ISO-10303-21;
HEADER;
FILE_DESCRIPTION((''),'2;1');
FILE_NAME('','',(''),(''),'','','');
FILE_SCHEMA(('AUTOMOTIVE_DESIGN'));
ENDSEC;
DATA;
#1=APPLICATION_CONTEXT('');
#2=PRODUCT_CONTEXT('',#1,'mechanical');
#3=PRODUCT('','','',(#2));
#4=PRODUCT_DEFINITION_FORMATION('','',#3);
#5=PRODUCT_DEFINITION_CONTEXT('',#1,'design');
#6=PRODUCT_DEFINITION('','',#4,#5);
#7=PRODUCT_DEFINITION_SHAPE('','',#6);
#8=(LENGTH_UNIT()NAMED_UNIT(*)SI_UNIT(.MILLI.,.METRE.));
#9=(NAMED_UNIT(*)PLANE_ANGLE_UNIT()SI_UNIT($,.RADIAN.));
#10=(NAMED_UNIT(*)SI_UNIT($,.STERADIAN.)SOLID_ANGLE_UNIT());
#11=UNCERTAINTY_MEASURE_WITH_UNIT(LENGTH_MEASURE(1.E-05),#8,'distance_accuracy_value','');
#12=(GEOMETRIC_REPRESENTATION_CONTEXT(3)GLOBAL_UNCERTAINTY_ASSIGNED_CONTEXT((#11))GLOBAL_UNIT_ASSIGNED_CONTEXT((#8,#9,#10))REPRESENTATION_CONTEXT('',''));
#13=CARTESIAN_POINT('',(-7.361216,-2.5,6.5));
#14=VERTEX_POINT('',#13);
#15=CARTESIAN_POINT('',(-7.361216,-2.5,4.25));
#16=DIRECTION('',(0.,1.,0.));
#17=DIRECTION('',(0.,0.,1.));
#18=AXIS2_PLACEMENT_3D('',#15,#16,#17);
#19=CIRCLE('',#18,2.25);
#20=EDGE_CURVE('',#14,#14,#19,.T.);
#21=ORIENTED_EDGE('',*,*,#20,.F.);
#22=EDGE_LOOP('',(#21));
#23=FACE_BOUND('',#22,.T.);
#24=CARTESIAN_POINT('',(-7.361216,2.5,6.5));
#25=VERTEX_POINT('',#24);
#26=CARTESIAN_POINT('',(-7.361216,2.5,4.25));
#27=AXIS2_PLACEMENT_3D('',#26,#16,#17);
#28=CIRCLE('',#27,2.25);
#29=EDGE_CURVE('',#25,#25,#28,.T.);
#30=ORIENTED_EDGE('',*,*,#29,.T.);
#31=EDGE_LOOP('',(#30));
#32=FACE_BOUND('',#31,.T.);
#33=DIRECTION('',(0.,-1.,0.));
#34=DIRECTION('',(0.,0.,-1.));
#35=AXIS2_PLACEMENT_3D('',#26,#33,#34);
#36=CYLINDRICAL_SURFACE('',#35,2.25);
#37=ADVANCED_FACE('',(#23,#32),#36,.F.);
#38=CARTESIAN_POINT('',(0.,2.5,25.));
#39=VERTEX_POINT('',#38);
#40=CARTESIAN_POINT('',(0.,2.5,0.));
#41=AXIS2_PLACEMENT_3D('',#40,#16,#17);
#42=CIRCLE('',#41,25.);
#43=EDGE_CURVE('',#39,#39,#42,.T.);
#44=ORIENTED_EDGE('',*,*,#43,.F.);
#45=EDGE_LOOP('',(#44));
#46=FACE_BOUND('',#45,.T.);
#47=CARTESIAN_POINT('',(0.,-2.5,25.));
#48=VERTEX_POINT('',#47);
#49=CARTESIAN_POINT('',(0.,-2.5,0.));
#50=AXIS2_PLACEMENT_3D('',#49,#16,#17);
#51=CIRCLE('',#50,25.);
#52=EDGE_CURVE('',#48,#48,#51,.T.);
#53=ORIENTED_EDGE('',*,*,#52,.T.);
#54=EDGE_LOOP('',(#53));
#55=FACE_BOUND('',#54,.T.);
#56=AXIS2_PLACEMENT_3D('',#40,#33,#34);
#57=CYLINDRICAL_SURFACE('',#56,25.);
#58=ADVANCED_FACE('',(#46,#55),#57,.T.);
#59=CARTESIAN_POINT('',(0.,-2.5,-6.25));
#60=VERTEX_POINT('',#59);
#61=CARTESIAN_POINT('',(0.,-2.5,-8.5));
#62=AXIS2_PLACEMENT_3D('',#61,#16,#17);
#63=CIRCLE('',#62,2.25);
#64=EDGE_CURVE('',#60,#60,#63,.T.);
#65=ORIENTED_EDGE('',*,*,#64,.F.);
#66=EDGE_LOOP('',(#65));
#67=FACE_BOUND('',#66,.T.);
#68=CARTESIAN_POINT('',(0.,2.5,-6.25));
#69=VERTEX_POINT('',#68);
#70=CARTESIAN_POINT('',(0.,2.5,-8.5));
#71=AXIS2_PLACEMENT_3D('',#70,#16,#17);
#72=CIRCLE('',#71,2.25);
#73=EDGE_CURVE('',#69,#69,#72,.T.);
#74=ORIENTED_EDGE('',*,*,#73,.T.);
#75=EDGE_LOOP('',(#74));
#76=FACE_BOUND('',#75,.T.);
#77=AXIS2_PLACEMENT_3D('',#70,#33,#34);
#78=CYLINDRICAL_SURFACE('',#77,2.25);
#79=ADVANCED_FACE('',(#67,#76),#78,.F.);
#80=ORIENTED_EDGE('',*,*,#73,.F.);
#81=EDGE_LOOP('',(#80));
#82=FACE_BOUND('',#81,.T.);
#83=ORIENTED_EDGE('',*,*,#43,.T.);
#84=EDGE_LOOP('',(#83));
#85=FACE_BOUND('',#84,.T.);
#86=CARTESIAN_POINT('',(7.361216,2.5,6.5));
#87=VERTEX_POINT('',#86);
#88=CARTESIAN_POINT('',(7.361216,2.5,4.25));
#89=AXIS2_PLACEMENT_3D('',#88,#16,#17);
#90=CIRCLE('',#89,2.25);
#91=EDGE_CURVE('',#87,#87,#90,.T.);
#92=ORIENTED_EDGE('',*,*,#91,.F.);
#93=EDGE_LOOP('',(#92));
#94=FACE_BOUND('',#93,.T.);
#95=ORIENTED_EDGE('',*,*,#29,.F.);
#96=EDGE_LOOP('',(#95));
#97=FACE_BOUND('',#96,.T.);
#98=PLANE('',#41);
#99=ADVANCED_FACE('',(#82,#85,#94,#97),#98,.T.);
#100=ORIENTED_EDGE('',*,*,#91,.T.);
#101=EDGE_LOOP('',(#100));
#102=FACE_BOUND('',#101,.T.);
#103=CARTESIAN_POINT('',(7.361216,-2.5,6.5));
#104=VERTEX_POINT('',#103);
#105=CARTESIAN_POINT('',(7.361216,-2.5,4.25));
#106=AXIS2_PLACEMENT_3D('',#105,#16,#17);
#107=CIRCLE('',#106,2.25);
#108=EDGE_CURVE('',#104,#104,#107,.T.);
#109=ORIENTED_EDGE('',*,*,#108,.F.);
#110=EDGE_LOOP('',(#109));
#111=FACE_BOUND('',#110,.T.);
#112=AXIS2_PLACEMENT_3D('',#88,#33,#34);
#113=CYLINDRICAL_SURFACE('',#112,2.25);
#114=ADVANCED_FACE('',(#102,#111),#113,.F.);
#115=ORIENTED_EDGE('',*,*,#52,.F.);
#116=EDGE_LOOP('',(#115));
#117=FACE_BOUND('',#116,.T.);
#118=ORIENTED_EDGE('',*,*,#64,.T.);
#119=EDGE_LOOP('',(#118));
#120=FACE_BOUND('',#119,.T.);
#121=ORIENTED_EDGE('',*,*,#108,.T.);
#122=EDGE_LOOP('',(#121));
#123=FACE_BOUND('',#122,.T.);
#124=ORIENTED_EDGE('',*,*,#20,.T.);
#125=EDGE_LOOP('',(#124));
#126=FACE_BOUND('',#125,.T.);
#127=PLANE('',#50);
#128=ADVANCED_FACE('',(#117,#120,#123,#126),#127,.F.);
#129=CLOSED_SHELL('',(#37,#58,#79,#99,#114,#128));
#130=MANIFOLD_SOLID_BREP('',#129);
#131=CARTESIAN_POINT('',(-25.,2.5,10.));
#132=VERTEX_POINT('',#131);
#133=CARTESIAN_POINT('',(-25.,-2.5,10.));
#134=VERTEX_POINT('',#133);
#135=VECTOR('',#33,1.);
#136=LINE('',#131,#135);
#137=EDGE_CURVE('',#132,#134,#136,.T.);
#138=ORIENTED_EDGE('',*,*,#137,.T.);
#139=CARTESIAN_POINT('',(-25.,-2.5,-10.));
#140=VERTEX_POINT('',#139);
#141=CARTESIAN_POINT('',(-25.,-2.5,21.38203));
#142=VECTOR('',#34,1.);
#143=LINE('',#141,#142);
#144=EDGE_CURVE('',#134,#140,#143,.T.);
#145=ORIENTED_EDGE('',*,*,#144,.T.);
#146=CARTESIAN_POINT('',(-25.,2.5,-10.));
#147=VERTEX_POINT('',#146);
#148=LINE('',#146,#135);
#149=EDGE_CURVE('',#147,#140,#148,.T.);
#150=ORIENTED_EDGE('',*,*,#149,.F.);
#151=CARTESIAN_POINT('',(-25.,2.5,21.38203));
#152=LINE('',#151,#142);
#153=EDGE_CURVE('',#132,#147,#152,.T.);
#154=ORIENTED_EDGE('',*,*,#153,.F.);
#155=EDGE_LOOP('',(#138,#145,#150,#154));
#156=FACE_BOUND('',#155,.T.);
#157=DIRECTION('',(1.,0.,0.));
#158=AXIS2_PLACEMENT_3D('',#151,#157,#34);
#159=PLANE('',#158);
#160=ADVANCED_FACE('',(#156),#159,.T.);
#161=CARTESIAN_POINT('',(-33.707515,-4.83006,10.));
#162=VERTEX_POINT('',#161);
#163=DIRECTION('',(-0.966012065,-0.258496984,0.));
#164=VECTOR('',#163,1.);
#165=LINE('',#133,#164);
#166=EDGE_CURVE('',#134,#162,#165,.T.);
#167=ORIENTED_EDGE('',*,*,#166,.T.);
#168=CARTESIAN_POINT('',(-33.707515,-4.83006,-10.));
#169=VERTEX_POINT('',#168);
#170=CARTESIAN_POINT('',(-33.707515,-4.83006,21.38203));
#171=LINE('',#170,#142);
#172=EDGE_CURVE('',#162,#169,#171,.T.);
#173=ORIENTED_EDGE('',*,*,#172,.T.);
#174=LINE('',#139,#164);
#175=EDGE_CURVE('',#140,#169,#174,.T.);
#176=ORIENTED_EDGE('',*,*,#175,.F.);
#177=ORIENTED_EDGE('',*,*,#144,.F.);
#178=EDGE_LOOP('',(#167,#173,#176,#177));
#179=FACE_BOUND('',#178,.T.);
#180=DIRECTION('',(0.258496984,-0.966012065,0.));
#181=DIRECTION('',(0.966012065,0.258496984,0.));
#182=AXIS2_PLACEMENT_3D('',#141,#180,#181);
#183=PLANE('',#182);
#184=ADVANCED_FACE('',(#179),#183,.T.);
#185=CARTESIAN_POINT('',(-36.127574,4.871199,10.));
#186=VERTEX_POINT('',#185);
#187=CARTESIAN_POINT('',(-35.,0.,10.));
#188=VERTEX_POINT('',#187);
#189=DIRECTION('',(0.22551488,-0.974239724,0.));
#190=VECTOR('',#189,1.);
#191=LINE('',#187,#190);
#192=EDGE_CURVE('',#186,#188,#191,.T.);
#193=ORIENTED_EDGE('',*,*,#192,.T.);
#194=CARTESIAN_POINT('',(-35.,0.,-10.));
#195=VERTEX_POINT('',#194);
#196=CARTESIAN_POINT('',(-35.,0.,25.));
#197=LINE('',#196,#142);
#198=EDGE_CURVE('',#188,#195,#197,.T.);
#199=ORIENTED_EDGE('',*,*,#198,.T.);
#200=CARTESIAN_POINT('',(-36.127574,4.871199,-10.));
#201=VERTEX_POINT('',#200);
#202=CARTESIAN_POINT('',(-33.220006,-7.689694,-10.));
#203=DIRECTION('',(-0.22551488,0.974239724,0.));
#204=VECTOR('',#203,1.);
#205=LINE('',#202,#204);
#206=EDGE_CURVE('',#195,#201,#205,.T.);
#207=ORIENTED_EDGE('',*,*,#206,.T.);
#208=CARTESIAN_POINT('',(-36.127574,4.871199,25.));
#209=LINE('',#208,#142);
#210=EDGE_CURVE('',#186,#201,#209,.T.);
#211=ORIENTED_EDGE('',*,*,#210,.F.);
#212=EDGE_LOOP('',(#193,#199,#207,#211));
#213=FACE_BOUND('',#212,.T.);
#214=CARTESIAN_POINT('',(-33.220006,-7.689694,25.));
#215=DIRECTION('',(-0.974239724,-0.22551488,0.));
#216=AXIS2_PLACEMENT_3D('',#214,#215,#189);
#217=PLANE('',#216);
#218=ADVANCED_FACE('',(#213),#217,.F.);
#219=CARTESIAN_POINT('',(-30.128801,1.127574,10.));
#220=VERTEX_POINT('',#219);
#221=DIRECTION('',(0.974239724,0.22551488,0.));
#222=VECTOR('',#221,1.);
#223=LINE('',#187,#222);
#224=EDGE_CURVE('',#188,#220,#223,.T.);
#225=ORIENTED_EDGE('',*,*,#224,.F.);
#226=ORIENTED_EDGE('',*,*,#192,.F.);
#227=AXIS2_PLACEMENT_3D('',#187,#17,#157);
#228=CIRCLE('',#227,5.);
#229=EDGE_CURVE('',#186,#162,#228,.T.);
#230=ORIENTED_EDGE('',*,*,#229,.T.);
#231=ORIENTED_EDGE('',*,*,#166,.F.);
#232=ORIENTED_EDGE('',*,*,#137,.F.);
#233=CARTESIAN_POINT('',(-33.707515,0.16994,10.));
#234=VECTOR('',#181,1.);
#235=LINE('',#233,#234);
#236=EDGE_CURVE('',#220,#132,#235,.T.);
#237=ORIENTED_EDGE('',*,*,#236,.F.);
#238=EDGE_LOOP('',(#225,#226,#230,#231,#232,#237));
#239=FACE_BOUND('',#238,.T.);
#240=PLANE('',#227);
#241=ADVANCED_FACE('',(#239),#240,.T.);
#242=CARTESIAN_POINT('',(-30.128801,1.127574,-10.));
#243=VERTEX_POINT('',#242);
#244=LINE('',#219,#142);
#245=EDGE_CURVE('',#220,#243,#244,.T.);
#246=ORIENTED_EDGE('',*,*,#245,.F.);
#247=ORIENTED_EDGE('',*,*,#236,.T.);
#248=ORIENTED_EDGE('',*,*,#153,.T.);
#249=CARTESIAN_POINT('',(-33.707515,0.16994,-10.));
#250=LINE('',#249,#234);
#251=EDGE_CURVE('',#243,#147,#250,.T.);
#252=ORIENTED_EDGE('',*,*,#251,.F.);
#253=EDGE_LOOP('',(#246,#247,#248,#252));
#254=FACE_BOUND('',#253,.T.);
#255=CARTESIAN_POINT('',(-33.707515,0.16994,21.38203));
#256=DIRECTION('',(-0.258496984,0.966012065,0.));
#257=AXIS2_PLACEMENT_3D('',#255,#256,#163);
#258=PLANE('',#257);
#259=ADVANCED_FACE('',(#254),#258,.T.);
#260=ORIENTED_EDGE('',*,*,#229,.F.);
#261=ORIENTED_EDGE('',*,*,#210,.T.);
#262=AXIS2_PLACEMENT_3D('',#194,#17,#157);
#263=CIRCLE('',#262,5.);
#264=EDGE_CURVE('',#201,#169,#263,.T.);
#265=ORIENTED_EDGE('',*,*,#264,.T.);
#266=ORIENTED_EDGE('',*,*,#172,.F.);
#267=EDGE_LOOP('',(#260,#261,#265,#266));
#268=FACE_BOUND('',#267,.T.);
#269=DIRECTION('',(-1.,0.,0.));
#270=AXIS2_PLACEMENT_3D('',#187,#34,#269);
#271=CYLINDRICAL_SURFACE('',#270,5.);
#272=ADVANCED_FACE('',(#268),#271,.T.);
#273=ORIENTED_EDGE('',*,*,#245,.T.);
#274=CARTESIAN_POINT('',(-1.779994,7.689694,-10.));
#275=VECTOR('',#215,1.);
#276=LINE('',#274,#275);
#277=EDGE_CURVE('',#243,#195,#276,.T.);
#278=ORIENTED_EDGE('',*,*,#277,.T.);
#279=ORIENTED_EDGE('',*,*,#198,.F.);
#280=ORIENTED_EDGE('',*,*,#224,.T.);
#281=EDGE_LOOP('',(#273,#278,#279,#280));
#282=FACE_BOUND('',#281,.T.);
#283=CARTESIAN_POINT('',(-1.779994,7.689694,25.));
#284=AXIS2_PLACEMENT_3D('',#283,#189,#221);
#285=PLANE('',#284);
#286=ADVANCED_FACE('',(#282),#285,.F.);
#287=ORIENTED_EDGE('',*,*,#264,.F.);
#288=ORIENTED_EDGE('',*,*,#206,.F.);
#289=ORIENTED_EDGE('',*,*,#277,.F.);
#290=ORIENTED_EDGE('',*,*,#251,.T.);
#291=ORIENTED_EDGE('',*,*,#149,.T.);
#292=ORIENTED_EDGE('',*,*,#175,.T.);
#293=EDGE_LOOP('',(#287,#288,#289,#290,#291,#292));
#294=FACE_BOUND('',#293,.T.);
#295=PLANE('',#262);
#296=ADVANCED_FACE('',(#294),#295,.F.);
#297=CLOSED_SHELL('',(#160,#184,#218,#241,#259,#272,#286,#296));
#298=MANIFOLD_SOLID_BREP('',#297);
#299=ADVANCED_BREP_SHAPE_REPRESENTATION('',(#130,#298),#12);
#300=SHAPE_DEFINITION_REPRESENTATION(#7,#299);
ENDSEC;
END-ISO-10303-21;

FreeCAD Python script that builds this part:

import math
import FreeCAD as App
import Part
import Sketcher
Q = App.Units.Quantity


def add_polygon(sketch, points):
    """Adds a closed chain of lines whose ends are joined by coincident constraints."""
    first, n = sketch.GeometryCount, len(points)
    for a, b in zip(points, points[1:] + points[:1]):
        sketch.addGeometry(Part.LineSegment(App.Vector(*a, 0), App.Vector(*b, 0)), False)
    for i in range(n):
        sketch.addConstraint(Sketcher.Constraint("Coincident", first + i, 2, first + (i + 1) % n, 1))

doc = App.newDocument("Part")
body = doc.addObject("PartDesign::Body", "Body")

# Sketch on XZ plane
sketch1 = body.newObject("Sketcher::SketchObject", "Sketch")
sketch1.AttachmentSupport = (doc.getObject("XZ_Plane"), [""])
sketch1.MapMode = "FlatFace"
sketch1.addGeometry(Part.Circle(App.Vector(0, 0, 0), App.Vector(0, 0, 1), 25), False)
sketch1.addGeometry(Part.Circle(App.Vector(0, -8.5, 0), App.Vector(0, 0, 1), 2.2), False)
sketch1.addGeometry(Part.Circle(App.Vector(-7.4, 4.2, 0), App.Vector(0, 0, 1), 2.2), False)
sketch1.addGeometry(Part.Circle(App.Vector(7.4, 4.2, 0), App.Vector(0, 0, 1), 2.2), False)
sketch1.addConstraint(Sketcher.Constraint("Coincident", 0, 3, -1, 1))
sketch1.addConstraint(Sketcher.Constraint("Equal", 1, 2))
sketch1.addConstraint(Sketcher.Constraint("Equal", 2, 3))
sketch1.addConstraint(Sketcher.Constraint("Symmetric", 2, 3, 3, 3, -2))
sketch1.addConstraint(Sketcher.Constraint("PointOnObject", 1, 3, -2))
sketch1.addConstraint(Sketcher.Constraint("Diameter", 0, Q("50 mm")))
sketch1.addConstraint(Sketcher.Constraint("Diameter", 1, Q("4.5 mm")))
sketch1.addConstraint(Sketcher.Constraint("DistanceY", 1, 3, -1, 1, Q("8.5 mm")))
sketch1.addConstraint(Sketcher.Constraint("DistanceY", -1, 1, 2, 3, Q("4.25 mm")))
sketch1.addConstraint(Sketcher.Constraint("DistanceX", 2, 3, 3, 3, Q("14.722432 mm")))
pad1 = body.newObject("PartDesign::Pad", "Pad")
pad1.Profile = sketch1
pad1.Length = 5
pad1.Midplane = True
body2 = doc.addObject("PartDesign::Body", "Body001")

# Sketch on XY plane
sketch2 = body2.newObject("Sketcher::SketchObject", "Sketch001")
sketch2.AttachmentSupport = (doc.getObject("XY_Plane001"), [""])
sketch2.MapMode = "FlatFace"
sketch2.addGeometry(Part.Circle(App.Vector(-35, 0, 0), App.Vector(0, 0, 1), 5), False)
sketch2.addConstraint(Sketcher.Constraint("PointOnObject", 0, 3, -1))
sketch2.addConstraint(Sketcher.Constraint("Diameter", 0, Q("10 mm")))
sketch2.addConstraint(Sketcher.Constraint("DistanceX", 0, 3, -1, 1, Q("35 mm")))
pad2 = body2.newObject("PartDesign::Pad", "Pad001")
pad2.Profile = sketch2
pad2.Length = 20
pad2.Midplane = True

# Sketch on XY plane
sketch3 = body2.newObject("Sketcher::SketchObject", "Sketch002")
sketch3.AttachmentSupport = (doc.getObject("XY_Plane001"), [""])
sketch3.MapMode = "FlatFace"
sketch3.AttachmentOffset = App.Placement(App.Vector(0, 0, -10), App.Rotation())
add_polygon(sketch3, [(-25, 2), (-25, -2), (-34, -5), (-34, 0)])  # lines 0-3
sketch3.addConstraint(Sketcher.Constraint("Vertical", 0))
sketch3.addConstraint(Sketcher.Constraint("Vertical", 2))
sketch3.addConstraint(Sketcher.Constraint("Parallel", 1, 3))
sketch3.addConstraint(Sketcher.Constraint("DistanceY", 0, 2, 0, 1, Q("5 mm")))
sketch3.addConstraint(Sketcher.Constraint("DistanceX", 0, 2, -1, 1, Q("25 mm")))
sketch3.addConstraint(Sketcher.Constraint("DistanceY", 0, 2, -1, 1, Q("2.5 mm")))
sketch3.addConstraint(Sketcher.Constraint("Distance", 1, Q("9.013878 mm")))
sketch3.addConstraint(Sketcher.Constraint("DistanceY", 1, 2, -1, 1, Q("4.83006 mm")))
pad3 = body2.newObject("PartDesign::Pad", "Pad002")
pad3.Profile = sketch3
pad3.Length = 20

# Sketch on XY plane
sketch4 = body2.newObject("Sketcher::SketchObject", "Sketch003")
sketch4.AttachmentSupport = (doc.getObject("XY_Plane001"), [""])
sketch4.MapMode = "FlatFace"
sketch4.AttachmentOffset = App.Placement(App.Vector(0, 0, -10), App.Rotation())
sketch4.addGeometry(Part.ArcOfCircle(Part.Circle(App.Vector(-35, 0, 0), App.Vector(0, 0, 1), 5), math.radians(13), math.radians(103)), False)
sketch4.addGeometry(Part.LineSegment(App.Vector(-30, 1, 0), App.Vector(-35, 0, 0)), False)
sketch4.addGeometry(Part.LineSegment(App.Vector(-35, 0, 0), App.Vector(-36, 5, 0)), False)
sketch4.addConstraint(Sketcher.Constraint("Coincident", 0, 1, 1, 1))
sketch4.addConstraint(Sketcher.Constraint("Coincident", 1, 2, 2, 1))
sketch4.addConstraint(Sketcher.Constraint("Coincident", 2, 2, 0, 2))
sketch4.addConstraint(Sketcher.Constraint("Coincident", 1, 2, 0, 3))
sketch4.addConstraint(Sketcher.Constraint("PointOnObject", 0, 3, -1))
sketch4.addConstraint(Sketcher.Constraint("Perpendicular", 1, 2))
sketch4.addConstraint(Sketcher.Constraint("Radius", 0, Q("5 mm")))
sketch4.addConstraint(Sketcher.Constraint("DistanceX", 0, 3, -1, 1, Q("35 mm")))
sketch4.addConstraint(Sketcher.Constraint("DistanceX", 0, 1, -1, 1, Q("30.128801 mm")))
pocket1 = body2.newObject("PartDesign::Pocket", "Pocket")
pocket1.Profile = sketch4
pocket1.Type = "ThroughAll"
pocket1.Reversed = True

doc.recompute()
